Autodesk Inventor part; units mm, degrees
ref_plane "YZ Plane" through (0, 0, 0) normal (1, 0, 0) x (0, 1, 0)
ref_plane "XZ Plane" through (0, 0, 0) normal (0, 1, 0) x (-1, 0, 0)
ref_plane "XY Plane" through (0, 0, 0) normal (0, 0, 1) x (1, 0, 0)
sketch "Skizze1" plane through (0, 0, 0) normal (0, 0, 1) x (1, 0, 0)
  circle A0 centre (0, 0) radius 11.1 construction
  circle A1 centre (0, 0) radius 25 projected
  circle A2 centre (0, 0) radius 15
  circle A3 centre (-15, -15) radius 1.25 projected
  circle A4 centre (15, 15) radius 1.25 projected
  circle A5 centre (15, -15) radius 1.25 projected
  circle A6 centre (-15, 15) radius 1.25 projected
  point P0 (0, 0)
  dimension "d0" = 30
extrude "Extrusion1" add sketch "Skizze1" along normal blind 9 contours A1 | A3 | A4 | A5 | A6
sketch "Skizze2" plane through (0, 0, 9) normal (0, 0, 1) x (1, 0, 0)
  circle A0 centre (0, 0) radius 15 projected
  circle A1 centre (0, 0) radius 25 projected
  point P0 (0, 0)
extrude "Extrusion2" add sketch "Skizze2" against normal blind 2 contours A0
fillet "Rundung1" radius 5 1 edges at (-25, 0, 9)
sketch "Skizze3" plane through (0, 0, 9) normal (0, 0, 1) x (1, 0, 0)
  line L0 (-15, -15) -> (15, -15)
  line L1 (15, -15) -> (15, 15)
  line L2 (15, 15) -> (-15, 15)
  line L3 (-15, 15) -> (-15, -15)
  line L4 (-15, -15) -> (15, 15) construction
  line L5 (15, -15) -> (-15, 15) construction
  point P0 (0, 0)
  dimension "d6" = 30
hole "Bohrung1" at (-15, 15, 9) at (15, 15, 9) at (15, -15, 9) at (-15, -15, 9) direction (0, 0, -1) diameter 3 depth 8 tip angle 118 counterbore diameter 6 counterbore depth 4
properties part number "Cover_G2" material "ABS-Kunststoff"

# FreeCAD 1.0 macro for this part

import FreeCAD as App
import Part
import Sketcher

V = App.Vector
Q = App.Units.Quantity


def edges_at(feature, points):
    """Names of the edges that pass closest to the given points."""
    edges = feature.Shape.Edges
    near = lambda p: min(range(len(edges)), key=lambda i: edges[i].distToShape(Part.Vertex(*p))[0])
    return sorted({f"Edge{near(p) + 1}" for p in points})

doc = App.newDocument("Part")
body = doc.addObject("PartDesign::Body", "Body")

# Sketch on XY plane
sketch1 = doc.addObject("Sketcher::SketchObject", "Sketch")
body.addObject(sketch1)
sketch1.AttachmentSupport = (doc.XY_Plane, [""])
sketch1.MapMode = "FlatFace"
sketch1.addGeometry(Part.Circle(V(0, 0, 0), V(0, 0, 1), 25), False)
sketch1.addGeometry(Part.Circle(V(0, 0, 0), V(0, 0, 1), 15), False)
sketch1.addConstraint(Sketcher.Constraint("Coincident", 0, 3, -1, 1))
sketch1.addConstraint(Sketcher.Constraint("Coincident", 1, 3, -1, 1))
sketch1.addConstraint(Sketcher.Constraint("Diameter", 1, Q("30 mm")))
sketch1.addConstraint(Sketcher.Constraint("Diameter", 0, Q("50 mm")))
pad1 = doc.addObject("PartDesign::Pad", "Pad")
body.addObject(pad1)
pad1.Profile = sketch1
pad1.Length = 9

# Sketch on XY plane
sketch2 = doc.addObject("Sketcher::SketchObject", "Sketch001")
body.addObject(sketch2)
sketch2.AttachmentSupport = (doc.XY_Plane, [""])
sketch2.MapMode = "FlatFace"
sketch2.AttachmentOffset = App.Placement(V(0, 0, 9), App.Rotation())
sketch2.addGeometry(Part.Circle(V(0, 0, 0), V(0, 0, 1), 15), False)
sketch2.addConstraint(Sketcher.Constraint("Coincident", 0, 3, -1, 1))
sketch2.addConstraint(Sketcher.Constraint("Diameter", 0, Q("30 mm")))
pad2 = doc.addObject("PartDesign::Pad", "Pad001")
body.addObject(pad2)
pad2.Profile = sketch2
pad2.Length = 2
pad2.Reversed = True
doc.recompute()

fillet = doc.addObject("PartDesign::Fillet", "Fillet")
body.addObject(fillet)
fillet.Base = (pad2, edges_at(pad2, [(-25, 0, 9)]))
fillet.Radius = 5

# Sketch on XY plane
sketch3 = doc.addObject("Sketcher::SketchObject", "Sketch002")
body.addObject(sketch3)
sketch3.AttachmentSupport = (doc.XY_Plane, [""])
sketch3.MapMode = "FlatFace"
sketch3.AttachmentOffset = App.Placement(V(0, 0, 9), App.Rotation())
sketch3.addGeometry(Part.Circle(V(-15, 15, 0), V(0, 0, 1), 1.5), False)
sketch3.addGeometry(Part.Circle(V(15, 15, 0), V(0, 0, 1), 1.5), False)
sketch3.addGeometry(Part.Circle(V(15, -15, 0), V(0, 0, 1), 1.5), False)
sketch3.addGeometry(Part.Circle(V(-15, -15, 0), V(0, 0, 1), 1.5), False)
sketch3.addConstraint(Sketcher.Constraint("Equal", 0, 1))
sketch3.addConstraint(Sketcher.Constraint("Equal", 1, 2))
sketch3.addConstraint(Sketcher.Constraint("Equal", 2, 3))
sketch3.addConstraint(Sketcher.Constraint("Symmetric", 0, 3, 2, 3, -1, 1))
sketch3.addConstraint(Sketcher.Constraint("Symmetric", 1, 3, 3, 3, -1, 1))
sketch3.addConstraint(Sketcher.Constraint("Symmetric", 0, 3, 1, 3, -2))
sketch3.addConstraint(Sketcher.Constraint("Diameter", 0, Q("3 mm")))
sketch3.addConstraint(Sketcher.Constraint("DistanceX", 0, 3, -1, 1, Q("15 mm")))
sketch3.addConstraint(Sketcher.Constraint("DistanceY", -1, 1, 0, 3, Q("15 mm")))
doc.recompute()
hole = doc.addObject("PartDesign::Hole", "Hole")
body.addObject(hole)
hole.Profile = sketch3
hole.ThreadType = "None"
hole.Diameter = 3
hole.DepthType = "Dimension"
hole.Depth = 8
hole.DrillPoint = "Angled"
hole.DrillPointAngle = 118
hole.HoleCutType = "Counterbore"
hole.HoleCutDiameter = 6
hole.HoleCutDepth = 4

doc.recompute()
